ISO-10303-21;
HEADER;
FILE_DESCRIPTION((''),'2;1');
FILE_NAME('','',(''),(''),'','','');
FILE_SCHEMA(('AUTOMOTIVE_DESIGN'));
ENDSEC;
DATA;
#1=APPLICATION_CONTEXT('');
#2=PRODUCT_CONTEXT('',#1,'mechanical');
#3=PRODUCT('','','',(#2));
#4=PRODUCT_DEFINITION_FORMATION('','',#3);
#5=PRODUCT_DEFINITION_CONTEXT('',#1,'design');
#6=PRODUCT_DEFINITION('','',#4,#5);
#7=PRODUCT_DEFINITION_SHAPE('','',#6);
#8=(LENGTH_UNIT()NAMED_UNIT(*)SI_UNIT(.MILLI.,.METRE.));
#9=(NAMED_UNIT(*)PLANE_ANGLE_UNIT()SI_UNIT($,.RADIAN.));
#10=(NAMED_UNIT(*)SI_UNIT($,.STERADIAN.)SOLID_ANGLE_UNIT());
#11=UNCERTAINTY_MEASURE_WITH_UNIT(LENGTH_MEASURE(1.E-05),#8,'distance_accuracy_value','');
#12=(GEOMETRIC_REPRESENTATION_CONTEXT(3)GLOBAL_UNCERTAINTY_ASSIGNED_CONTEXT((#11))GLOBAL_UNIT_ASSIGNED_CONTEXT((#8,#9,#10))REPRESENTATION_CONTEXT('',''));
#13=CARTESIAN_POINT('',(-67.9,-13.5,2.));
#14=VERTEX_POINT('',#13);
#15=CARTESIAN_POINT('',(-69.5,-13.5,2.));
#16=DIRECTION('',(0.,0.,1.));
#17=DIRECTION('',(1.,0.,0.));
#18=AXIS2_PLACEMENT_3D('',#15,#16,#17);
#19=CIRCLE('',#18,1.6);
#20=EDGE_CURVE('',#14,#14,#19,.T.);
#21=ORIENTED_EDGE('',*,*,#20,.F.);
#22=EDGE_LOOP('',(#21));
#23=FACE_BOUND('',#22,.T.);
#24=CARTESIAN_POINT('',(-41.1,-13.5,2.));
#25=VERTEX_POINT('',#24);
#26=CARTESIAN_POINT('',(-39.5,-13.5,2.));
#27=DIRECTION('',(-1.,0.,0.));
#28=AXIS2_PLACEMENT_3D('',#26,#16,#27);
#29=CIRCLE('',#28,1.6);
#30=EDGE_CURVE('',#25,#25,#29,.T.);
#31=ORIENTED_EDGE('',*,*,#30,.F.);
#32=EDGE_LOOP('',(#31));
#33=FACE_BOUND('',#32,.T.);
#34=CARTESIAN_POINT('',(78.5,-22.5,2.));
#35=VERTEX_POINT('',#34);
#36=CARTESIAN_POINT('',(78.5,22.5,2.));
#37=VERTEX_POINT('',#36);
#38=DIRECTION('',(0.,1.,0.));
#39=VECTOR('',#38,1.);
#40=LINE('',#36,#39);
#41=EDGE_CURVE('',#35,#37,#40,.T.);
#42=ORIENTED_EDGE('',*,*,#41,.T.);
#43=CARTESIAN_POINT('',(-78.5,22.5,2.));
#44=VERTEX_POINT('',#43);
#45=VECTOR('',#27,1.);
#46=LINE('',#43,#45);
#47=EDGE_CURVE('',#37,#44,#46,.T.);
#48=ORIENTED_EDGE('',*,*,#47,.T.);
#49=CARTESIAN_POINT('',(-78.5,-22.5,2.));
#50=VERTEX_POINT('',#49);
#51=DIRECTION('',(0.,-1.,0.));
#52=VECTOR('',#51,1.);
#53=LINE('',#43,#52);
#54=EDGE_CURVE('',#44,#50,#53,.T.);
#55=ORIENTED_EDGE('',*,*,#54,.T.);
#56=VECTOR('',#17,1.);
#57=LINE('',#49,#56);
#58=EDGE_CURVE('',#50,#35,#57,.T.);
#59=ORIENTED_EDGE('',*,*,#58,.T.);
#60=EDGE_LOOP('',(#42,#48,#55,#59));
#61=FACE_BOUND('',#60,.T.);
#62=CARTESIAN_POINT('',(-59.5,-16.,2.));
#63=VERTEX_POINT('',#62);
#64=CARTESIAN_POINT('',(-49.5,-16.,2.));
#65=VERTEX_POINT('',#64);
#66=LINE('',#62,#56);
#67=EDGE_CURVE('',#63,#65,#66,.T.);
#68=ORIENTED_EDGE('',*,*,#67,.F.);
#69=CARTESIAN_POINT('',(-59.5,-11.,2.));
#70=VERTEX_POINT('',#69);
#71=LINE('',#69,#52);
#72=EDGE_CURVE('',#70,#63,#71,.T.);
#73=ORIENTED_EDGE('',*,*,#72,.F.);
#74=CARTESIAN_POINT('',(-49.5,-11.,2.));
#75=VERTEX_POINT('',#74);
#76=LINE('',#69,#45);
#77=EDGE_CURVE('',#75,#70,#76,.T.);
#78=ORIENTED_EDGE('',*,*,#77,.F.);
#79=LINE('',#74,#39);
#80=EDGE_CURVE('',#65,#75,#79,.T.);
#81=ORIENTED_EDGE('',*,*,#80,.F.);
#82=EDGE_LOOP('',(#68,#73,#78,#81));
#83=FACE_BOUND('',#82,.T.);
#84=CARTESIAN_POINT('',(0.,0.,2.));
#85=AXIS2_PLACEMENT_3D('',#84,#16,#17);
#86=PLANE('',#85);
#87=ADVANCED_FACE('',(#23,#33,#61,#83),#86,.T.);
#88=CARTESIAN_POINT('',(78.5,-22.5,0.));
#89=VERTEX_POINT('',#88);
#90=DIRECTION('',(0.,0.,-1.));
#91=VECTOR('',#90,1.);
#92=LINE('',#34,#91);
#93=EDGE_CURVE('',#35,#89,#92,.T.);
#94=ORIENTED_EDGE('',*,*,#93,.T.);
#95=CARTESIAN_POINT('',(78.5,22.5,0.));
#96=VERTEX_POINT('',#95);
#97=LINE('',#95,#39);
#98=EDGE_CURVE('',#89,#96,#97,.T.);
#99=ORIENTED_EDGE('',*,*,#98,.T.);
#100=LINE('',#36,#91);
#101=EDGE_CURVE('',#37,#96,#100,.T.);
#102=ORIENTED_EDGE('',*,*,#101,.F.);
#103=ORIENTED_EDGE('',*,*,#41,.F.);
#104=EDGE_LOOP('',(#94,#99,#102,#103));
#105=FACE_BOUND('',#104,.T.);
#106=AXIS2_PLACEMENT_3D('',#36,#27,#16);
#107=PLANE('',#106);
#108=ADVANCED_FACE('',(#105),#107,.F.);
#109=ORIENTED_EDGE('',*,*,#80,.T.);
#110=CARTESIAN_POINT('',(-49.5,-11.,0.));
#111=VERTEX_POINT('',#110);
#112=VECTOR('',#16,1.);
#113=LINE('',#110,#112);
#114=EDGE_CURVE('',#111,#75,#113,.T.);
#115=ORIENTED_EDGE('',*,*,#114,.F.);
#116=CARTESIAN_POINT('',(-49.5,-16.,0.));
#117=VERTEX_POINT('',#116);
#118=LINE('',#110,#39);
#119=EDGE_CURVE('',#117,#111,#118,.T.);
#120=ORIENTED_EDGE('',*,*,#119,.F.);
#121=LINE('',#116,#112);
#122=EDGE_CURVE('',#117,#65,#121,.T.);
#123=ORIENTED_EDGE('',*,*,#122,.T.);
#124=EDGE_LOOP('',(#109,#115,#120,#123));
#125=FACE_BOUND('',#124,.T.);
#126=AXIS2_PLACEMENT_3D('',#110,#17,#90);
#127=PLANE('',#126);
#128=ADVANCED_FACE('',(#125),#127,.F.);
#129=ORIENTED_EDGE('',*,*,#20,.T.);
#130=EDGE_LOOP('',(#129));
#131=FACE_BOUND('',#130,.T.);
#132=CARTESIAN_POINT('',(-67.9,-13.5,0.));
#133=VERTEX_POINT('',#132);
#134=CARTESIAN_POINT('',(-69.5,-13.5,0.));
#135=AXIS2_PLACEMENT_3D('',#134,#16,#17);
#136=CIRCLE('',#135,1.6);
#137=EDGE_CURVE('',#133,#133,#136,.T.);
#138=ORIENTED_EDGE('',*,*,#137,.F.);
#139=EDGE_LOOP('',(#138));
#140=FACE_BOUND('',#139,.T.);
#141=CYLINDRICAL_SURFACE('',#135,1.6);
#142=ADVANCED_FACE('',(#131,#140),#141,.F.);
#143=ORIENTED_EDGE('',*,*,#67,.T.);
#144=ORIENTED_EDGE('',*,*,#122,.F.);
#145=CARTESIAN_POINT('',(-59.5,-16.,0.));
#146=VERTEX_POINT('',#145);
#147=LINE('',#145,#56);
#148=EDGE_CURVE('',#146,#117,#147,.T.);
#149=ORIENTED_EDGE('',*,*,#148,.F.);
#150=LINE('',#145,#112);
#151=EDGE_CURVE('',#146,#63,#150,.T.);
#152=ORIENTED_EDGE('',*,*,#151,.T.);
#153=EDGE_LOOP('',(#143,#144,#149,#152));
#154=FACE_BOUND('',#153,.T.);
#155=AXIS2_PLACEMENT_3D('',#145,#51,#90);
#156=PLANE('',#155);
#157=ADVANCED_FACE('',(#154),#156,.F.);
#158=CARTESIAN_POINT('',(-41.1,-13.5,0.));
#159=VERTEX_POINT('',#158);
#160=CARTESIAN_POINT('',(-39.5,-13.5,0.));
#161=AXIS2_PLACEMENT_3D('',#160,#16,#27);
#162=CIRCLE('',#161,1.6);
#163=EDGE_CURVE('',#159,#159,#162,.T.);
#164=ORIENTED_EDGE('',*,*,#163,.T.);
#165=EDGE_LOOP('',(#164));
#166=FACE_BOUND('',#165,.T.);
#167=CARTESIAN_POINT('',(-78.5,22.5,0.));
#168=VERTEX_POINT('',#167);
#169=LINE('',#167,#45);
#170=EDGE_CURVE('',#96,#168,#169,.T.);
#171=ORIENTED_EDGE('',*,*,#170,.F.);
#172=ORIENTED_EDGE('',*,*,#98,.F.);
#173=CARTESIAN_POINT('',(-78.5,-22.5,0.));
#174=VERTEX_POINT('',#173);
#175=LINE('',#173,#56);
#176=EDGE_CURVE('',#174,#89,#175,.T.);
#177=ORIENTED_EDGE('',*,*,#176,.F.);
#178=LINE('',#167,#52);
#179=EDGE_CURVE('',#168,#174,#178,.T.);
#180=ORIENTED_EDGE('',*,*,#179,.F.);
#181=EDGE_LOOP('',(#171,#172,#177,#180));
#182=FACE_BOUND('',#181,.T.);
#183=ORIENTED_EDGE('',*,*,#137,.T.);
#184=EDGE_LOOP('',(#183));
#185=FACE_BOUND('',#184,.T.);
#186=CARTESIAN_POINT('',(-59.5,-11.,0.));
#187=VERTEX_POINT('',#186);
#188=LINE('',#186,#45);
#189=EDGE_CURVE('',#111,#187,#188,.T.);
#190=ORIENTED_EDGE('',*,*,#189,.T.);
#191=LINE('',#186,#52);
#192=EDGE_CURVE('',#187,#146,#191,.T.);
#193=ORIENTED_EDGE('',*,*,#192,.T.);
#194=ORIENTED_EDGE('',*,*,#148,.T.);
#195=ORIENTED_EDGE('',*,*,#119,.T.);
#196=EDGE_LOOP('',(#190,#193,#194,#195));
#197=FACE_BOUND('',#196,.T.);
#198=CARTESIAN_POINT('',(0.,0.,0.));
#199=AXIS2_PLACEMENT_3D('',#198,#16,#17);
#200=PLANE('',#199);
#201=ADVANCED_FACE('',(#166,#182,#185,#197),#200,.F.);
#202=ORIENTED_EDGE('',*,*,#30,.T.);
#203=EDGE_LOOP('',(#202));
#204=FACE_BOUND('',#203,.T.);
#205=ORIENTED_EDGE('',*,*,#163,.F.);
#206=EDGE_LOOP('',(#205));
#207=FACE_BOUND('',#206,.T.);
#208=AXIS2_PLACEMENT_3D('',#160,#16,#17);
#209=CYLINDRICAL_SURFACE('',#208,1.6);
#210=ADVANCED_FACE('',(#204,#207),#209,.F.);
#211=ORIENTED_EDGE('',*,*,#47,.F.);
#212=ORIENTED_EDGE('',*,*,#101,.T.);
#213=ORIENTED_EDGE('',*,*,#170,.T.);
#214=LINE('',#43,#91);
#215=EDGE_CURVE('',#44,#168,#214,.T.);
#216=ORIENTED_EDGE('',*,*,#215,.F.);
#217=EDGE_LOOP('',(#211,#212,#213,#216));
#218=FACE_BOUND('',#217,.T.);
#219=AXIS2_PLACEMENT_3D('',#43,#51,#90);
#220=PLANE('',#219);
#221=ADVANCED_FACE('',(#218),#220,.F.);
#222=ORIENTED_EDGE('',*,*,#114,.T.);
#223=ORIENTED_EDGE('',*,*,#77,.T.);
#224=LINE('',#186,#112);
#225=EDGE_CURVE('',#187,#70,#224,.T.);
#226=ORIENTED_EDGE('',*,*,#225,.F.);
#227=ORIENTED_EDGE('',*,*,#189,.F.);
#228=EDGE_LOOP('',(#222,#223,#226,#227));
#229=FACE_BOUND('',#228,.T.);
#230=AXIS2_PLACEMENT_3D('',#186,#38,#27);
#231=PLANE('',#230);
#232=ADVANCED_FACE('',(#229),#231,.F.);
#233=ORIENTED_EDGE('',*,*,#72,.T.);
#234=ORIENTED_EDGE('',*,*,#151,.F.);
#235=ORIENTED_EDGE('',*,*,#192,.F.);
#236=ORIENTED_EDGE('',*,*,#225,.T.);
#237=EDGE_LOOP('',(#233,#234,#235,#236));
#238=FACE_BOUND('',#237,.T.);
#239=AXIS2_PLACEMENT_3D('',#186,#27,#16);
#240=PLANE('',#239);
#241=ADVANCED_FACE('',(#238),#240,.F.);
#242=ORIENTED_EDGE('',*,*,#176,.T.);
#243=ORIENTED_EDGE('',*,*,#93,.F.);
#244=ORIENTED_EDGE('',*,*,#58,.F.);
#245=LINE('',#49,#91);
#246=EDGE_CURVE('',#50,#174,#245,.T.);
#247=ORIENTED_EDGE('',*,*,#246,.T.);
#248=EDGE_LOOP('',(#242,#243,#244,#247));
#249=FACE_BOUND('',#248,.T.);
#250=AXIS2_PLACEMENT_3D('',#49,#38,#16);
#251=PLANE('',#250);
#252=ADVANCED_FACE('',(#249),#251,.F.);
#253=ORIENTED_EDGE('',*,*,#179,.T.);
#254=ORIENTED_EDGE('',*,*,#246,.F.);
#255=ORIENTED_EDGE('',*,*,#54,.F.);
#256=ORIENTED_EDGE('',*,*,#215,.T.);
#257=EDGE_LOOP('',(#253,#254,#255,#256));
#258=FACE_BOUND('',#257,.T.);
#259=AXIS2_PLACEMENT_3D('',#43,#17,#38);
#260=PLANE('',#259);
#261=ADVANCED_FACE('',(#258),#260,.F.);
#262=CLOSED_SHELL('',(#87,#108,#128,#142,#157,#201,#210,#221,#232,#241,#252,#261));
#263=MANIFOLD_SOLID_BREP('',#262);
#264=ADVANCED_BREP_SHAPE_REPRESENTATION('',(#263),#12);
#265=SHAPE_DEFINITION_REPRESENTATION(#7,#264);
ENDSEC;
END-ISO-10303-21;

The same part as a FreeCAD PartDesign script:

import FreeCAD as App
import Part
import Sketcher

V = App.Vector


def add_polygon(sketch, points):
    """Adds a closed chain of lines whose ends are joined by coincident constraints."""
    first, n = sketch.GeometryCount, len(points)
    for a, b in zip(points, points[1:] + points[:1]):
        sketch.addGeometry(Part.LineSegment(App.Vector(*a, 0), App.Vector(*b, 0)), False)
    for i in range(n):
        sketch.addConstraint(Sketcher.Constraint("Coincident", first + i, 2, first + (i + 1) % n, 1))

doc = App.newDocument("Part")
params = doc.addObject("Spreadsheet::Sheet", "Params")
for row, (alias, value) in enumerate([
    ("sketch1_width", "157 mm"),
    ("sketch1_height", "45 mm"),
    ("pad1_length", "2 mm"),
    ("sketch2_diameter", "3.2 mm"),
    ("sketch2_width", "10 mm"),
    ("sketch2_height", "5 mm"),
], start=1):
    params.set(f"A{row}", alias)
    params.set(f"B{row}", "=" + value)
    params.setAlias(f"B{row}", alias)

body = doc.addObject("PartDesign::Body", "Body")

# Sketch on XY plane
sketch1 = doc.addObject("Sketcher::SketchObject", "Sketch")
body.addObject(sketch1)
sketch1.AttachmentSupport = (doc.XY_Plane, [""])
sketch1.MapMode = "FlatFace"
add_polygon(sketch1, [(-78, 22), (-78, -22), (78, -22), (78, 22)])  # lines 0-3
sketch1.addConstraint(Sketcher.Constraint("Vertical", 0))
sketch1.addConstraint(Sketcher.Constraint("Horizontal", 1))
sketch1.addConstraint(Sketcher.Constraint("Vertical", 2))
sketch1.addConstraint(Sketcher.Constraint("Horizontal", 3))
sketch1.addConstraint(Sketcher.Constraint("Symmetric", 0, 2, 2, 2, -1, 1))
sketch1.addConstraint(Sketcher.Constraint("DistanceX", 1, 1, 1, 2, 157.0))
sketch1.addConstraint(Sketcher.Constraint("DistanceY", 0, 2, 0, 1, 45.0))
sketch1.setExpression("Constraints[9]", "Params.sketch1_width")
sketch1.setExpression("Constraints[10]", "Params.sketch1_height")
pad1 = doc.addObject("PartDesign::Pad", "Pad")
body.addObject(pad1)
pad1.Profile = sketch1
pad1.setExpression("Length", "Params.pad1_length")

# Sketch on XY plane
sketch2 = doc.addObject("Sketcher::SketchObject", "Sketch001")
body.addObject(sketch2)
sketch2.AttachmentSupport = (doc.XY_Plane, [""])
sketch2.MapMode = "FlatFace"
sketch2.AttachmentOffset = App.Placement(V(0, 0, 2), App.Rotation())
sketch2.addGeometry(Part.Circle(V(-69.5, -13.5, 0), V(0, 0, 1), 1.6), False)  # 0
sketch2.addGeometry(Part.Circle(V(-39.5, -13.5, 0), V(0, 0, 1), 1.6), False)  # 1
add_polygon(sketch2, [(-59.5, -11), (-59.5, -16), (-49.5, -16), (-49.5, -11)])  # lines 2-5
sketch2.addConstraint(Sketcher.Constraint("Vertical", 2))
sketch2.addConstraint(Sketcher.Constraint("Horizontal", 3))
sketch2.addConstraint(Sketcher.Constraint("Vertical", 4))
sketch2.addConstraint(Sketcher.Constraint("Horizontal", 5))
sketch2.addConstraint(Sketcher.Constraint("Equal", 0, 1))
sketch2.addConstraint(Sketcher.Constraint("Horizontal", 0, 3, 1, 3))
sketch2.addConstraint(Sketcher.Constraint("Diameter", 0, 3.2))
sketch2.addConstraint(Sketcher.Constraint("DistanceX", 3, 1, 3, 2, 10.0))
sketch2.addConstraint(Sketcher.Constraint("DistanceY", 2, 2, 2, 1, 5.0))
sketch2.addConstraint(Sketcher.Constraint("DistanceY", 2, 2, -1, 1, 16.0))
sketch2.addConstraint(Sketcher.Constraint("DistanceX", 0, 3, 1, 3, 30.0))
sketch2.addConstraint(Sketcher.Constraint("DistanceX", 0, 3, 2, 2, 10.0))
sketch2.addConstraint(Sketcher.Constraint("DistanceX", 0, 3, -1, 1, 69.5))
sketch2.addConstraint(Sketcher.Constraint("DistanceY", 0, 3, -1, 1, 13.5))
sketch2.setExpression("Constraints[10]", "Params.sketch2_diameter")
sketch2.setExpression("Constraints[11]", "Params.sketch2_width")
sketch2.setExpression("Constraints[12]", "Params.sketch2_height")
pocket1 = doc.addObject("PartDesign::Pocket", "Pocket")
body.addObject(pocket1)
pocket1.Profile = sketch2
pocket1.Type = "ThroughAll"

doc.recompute()
